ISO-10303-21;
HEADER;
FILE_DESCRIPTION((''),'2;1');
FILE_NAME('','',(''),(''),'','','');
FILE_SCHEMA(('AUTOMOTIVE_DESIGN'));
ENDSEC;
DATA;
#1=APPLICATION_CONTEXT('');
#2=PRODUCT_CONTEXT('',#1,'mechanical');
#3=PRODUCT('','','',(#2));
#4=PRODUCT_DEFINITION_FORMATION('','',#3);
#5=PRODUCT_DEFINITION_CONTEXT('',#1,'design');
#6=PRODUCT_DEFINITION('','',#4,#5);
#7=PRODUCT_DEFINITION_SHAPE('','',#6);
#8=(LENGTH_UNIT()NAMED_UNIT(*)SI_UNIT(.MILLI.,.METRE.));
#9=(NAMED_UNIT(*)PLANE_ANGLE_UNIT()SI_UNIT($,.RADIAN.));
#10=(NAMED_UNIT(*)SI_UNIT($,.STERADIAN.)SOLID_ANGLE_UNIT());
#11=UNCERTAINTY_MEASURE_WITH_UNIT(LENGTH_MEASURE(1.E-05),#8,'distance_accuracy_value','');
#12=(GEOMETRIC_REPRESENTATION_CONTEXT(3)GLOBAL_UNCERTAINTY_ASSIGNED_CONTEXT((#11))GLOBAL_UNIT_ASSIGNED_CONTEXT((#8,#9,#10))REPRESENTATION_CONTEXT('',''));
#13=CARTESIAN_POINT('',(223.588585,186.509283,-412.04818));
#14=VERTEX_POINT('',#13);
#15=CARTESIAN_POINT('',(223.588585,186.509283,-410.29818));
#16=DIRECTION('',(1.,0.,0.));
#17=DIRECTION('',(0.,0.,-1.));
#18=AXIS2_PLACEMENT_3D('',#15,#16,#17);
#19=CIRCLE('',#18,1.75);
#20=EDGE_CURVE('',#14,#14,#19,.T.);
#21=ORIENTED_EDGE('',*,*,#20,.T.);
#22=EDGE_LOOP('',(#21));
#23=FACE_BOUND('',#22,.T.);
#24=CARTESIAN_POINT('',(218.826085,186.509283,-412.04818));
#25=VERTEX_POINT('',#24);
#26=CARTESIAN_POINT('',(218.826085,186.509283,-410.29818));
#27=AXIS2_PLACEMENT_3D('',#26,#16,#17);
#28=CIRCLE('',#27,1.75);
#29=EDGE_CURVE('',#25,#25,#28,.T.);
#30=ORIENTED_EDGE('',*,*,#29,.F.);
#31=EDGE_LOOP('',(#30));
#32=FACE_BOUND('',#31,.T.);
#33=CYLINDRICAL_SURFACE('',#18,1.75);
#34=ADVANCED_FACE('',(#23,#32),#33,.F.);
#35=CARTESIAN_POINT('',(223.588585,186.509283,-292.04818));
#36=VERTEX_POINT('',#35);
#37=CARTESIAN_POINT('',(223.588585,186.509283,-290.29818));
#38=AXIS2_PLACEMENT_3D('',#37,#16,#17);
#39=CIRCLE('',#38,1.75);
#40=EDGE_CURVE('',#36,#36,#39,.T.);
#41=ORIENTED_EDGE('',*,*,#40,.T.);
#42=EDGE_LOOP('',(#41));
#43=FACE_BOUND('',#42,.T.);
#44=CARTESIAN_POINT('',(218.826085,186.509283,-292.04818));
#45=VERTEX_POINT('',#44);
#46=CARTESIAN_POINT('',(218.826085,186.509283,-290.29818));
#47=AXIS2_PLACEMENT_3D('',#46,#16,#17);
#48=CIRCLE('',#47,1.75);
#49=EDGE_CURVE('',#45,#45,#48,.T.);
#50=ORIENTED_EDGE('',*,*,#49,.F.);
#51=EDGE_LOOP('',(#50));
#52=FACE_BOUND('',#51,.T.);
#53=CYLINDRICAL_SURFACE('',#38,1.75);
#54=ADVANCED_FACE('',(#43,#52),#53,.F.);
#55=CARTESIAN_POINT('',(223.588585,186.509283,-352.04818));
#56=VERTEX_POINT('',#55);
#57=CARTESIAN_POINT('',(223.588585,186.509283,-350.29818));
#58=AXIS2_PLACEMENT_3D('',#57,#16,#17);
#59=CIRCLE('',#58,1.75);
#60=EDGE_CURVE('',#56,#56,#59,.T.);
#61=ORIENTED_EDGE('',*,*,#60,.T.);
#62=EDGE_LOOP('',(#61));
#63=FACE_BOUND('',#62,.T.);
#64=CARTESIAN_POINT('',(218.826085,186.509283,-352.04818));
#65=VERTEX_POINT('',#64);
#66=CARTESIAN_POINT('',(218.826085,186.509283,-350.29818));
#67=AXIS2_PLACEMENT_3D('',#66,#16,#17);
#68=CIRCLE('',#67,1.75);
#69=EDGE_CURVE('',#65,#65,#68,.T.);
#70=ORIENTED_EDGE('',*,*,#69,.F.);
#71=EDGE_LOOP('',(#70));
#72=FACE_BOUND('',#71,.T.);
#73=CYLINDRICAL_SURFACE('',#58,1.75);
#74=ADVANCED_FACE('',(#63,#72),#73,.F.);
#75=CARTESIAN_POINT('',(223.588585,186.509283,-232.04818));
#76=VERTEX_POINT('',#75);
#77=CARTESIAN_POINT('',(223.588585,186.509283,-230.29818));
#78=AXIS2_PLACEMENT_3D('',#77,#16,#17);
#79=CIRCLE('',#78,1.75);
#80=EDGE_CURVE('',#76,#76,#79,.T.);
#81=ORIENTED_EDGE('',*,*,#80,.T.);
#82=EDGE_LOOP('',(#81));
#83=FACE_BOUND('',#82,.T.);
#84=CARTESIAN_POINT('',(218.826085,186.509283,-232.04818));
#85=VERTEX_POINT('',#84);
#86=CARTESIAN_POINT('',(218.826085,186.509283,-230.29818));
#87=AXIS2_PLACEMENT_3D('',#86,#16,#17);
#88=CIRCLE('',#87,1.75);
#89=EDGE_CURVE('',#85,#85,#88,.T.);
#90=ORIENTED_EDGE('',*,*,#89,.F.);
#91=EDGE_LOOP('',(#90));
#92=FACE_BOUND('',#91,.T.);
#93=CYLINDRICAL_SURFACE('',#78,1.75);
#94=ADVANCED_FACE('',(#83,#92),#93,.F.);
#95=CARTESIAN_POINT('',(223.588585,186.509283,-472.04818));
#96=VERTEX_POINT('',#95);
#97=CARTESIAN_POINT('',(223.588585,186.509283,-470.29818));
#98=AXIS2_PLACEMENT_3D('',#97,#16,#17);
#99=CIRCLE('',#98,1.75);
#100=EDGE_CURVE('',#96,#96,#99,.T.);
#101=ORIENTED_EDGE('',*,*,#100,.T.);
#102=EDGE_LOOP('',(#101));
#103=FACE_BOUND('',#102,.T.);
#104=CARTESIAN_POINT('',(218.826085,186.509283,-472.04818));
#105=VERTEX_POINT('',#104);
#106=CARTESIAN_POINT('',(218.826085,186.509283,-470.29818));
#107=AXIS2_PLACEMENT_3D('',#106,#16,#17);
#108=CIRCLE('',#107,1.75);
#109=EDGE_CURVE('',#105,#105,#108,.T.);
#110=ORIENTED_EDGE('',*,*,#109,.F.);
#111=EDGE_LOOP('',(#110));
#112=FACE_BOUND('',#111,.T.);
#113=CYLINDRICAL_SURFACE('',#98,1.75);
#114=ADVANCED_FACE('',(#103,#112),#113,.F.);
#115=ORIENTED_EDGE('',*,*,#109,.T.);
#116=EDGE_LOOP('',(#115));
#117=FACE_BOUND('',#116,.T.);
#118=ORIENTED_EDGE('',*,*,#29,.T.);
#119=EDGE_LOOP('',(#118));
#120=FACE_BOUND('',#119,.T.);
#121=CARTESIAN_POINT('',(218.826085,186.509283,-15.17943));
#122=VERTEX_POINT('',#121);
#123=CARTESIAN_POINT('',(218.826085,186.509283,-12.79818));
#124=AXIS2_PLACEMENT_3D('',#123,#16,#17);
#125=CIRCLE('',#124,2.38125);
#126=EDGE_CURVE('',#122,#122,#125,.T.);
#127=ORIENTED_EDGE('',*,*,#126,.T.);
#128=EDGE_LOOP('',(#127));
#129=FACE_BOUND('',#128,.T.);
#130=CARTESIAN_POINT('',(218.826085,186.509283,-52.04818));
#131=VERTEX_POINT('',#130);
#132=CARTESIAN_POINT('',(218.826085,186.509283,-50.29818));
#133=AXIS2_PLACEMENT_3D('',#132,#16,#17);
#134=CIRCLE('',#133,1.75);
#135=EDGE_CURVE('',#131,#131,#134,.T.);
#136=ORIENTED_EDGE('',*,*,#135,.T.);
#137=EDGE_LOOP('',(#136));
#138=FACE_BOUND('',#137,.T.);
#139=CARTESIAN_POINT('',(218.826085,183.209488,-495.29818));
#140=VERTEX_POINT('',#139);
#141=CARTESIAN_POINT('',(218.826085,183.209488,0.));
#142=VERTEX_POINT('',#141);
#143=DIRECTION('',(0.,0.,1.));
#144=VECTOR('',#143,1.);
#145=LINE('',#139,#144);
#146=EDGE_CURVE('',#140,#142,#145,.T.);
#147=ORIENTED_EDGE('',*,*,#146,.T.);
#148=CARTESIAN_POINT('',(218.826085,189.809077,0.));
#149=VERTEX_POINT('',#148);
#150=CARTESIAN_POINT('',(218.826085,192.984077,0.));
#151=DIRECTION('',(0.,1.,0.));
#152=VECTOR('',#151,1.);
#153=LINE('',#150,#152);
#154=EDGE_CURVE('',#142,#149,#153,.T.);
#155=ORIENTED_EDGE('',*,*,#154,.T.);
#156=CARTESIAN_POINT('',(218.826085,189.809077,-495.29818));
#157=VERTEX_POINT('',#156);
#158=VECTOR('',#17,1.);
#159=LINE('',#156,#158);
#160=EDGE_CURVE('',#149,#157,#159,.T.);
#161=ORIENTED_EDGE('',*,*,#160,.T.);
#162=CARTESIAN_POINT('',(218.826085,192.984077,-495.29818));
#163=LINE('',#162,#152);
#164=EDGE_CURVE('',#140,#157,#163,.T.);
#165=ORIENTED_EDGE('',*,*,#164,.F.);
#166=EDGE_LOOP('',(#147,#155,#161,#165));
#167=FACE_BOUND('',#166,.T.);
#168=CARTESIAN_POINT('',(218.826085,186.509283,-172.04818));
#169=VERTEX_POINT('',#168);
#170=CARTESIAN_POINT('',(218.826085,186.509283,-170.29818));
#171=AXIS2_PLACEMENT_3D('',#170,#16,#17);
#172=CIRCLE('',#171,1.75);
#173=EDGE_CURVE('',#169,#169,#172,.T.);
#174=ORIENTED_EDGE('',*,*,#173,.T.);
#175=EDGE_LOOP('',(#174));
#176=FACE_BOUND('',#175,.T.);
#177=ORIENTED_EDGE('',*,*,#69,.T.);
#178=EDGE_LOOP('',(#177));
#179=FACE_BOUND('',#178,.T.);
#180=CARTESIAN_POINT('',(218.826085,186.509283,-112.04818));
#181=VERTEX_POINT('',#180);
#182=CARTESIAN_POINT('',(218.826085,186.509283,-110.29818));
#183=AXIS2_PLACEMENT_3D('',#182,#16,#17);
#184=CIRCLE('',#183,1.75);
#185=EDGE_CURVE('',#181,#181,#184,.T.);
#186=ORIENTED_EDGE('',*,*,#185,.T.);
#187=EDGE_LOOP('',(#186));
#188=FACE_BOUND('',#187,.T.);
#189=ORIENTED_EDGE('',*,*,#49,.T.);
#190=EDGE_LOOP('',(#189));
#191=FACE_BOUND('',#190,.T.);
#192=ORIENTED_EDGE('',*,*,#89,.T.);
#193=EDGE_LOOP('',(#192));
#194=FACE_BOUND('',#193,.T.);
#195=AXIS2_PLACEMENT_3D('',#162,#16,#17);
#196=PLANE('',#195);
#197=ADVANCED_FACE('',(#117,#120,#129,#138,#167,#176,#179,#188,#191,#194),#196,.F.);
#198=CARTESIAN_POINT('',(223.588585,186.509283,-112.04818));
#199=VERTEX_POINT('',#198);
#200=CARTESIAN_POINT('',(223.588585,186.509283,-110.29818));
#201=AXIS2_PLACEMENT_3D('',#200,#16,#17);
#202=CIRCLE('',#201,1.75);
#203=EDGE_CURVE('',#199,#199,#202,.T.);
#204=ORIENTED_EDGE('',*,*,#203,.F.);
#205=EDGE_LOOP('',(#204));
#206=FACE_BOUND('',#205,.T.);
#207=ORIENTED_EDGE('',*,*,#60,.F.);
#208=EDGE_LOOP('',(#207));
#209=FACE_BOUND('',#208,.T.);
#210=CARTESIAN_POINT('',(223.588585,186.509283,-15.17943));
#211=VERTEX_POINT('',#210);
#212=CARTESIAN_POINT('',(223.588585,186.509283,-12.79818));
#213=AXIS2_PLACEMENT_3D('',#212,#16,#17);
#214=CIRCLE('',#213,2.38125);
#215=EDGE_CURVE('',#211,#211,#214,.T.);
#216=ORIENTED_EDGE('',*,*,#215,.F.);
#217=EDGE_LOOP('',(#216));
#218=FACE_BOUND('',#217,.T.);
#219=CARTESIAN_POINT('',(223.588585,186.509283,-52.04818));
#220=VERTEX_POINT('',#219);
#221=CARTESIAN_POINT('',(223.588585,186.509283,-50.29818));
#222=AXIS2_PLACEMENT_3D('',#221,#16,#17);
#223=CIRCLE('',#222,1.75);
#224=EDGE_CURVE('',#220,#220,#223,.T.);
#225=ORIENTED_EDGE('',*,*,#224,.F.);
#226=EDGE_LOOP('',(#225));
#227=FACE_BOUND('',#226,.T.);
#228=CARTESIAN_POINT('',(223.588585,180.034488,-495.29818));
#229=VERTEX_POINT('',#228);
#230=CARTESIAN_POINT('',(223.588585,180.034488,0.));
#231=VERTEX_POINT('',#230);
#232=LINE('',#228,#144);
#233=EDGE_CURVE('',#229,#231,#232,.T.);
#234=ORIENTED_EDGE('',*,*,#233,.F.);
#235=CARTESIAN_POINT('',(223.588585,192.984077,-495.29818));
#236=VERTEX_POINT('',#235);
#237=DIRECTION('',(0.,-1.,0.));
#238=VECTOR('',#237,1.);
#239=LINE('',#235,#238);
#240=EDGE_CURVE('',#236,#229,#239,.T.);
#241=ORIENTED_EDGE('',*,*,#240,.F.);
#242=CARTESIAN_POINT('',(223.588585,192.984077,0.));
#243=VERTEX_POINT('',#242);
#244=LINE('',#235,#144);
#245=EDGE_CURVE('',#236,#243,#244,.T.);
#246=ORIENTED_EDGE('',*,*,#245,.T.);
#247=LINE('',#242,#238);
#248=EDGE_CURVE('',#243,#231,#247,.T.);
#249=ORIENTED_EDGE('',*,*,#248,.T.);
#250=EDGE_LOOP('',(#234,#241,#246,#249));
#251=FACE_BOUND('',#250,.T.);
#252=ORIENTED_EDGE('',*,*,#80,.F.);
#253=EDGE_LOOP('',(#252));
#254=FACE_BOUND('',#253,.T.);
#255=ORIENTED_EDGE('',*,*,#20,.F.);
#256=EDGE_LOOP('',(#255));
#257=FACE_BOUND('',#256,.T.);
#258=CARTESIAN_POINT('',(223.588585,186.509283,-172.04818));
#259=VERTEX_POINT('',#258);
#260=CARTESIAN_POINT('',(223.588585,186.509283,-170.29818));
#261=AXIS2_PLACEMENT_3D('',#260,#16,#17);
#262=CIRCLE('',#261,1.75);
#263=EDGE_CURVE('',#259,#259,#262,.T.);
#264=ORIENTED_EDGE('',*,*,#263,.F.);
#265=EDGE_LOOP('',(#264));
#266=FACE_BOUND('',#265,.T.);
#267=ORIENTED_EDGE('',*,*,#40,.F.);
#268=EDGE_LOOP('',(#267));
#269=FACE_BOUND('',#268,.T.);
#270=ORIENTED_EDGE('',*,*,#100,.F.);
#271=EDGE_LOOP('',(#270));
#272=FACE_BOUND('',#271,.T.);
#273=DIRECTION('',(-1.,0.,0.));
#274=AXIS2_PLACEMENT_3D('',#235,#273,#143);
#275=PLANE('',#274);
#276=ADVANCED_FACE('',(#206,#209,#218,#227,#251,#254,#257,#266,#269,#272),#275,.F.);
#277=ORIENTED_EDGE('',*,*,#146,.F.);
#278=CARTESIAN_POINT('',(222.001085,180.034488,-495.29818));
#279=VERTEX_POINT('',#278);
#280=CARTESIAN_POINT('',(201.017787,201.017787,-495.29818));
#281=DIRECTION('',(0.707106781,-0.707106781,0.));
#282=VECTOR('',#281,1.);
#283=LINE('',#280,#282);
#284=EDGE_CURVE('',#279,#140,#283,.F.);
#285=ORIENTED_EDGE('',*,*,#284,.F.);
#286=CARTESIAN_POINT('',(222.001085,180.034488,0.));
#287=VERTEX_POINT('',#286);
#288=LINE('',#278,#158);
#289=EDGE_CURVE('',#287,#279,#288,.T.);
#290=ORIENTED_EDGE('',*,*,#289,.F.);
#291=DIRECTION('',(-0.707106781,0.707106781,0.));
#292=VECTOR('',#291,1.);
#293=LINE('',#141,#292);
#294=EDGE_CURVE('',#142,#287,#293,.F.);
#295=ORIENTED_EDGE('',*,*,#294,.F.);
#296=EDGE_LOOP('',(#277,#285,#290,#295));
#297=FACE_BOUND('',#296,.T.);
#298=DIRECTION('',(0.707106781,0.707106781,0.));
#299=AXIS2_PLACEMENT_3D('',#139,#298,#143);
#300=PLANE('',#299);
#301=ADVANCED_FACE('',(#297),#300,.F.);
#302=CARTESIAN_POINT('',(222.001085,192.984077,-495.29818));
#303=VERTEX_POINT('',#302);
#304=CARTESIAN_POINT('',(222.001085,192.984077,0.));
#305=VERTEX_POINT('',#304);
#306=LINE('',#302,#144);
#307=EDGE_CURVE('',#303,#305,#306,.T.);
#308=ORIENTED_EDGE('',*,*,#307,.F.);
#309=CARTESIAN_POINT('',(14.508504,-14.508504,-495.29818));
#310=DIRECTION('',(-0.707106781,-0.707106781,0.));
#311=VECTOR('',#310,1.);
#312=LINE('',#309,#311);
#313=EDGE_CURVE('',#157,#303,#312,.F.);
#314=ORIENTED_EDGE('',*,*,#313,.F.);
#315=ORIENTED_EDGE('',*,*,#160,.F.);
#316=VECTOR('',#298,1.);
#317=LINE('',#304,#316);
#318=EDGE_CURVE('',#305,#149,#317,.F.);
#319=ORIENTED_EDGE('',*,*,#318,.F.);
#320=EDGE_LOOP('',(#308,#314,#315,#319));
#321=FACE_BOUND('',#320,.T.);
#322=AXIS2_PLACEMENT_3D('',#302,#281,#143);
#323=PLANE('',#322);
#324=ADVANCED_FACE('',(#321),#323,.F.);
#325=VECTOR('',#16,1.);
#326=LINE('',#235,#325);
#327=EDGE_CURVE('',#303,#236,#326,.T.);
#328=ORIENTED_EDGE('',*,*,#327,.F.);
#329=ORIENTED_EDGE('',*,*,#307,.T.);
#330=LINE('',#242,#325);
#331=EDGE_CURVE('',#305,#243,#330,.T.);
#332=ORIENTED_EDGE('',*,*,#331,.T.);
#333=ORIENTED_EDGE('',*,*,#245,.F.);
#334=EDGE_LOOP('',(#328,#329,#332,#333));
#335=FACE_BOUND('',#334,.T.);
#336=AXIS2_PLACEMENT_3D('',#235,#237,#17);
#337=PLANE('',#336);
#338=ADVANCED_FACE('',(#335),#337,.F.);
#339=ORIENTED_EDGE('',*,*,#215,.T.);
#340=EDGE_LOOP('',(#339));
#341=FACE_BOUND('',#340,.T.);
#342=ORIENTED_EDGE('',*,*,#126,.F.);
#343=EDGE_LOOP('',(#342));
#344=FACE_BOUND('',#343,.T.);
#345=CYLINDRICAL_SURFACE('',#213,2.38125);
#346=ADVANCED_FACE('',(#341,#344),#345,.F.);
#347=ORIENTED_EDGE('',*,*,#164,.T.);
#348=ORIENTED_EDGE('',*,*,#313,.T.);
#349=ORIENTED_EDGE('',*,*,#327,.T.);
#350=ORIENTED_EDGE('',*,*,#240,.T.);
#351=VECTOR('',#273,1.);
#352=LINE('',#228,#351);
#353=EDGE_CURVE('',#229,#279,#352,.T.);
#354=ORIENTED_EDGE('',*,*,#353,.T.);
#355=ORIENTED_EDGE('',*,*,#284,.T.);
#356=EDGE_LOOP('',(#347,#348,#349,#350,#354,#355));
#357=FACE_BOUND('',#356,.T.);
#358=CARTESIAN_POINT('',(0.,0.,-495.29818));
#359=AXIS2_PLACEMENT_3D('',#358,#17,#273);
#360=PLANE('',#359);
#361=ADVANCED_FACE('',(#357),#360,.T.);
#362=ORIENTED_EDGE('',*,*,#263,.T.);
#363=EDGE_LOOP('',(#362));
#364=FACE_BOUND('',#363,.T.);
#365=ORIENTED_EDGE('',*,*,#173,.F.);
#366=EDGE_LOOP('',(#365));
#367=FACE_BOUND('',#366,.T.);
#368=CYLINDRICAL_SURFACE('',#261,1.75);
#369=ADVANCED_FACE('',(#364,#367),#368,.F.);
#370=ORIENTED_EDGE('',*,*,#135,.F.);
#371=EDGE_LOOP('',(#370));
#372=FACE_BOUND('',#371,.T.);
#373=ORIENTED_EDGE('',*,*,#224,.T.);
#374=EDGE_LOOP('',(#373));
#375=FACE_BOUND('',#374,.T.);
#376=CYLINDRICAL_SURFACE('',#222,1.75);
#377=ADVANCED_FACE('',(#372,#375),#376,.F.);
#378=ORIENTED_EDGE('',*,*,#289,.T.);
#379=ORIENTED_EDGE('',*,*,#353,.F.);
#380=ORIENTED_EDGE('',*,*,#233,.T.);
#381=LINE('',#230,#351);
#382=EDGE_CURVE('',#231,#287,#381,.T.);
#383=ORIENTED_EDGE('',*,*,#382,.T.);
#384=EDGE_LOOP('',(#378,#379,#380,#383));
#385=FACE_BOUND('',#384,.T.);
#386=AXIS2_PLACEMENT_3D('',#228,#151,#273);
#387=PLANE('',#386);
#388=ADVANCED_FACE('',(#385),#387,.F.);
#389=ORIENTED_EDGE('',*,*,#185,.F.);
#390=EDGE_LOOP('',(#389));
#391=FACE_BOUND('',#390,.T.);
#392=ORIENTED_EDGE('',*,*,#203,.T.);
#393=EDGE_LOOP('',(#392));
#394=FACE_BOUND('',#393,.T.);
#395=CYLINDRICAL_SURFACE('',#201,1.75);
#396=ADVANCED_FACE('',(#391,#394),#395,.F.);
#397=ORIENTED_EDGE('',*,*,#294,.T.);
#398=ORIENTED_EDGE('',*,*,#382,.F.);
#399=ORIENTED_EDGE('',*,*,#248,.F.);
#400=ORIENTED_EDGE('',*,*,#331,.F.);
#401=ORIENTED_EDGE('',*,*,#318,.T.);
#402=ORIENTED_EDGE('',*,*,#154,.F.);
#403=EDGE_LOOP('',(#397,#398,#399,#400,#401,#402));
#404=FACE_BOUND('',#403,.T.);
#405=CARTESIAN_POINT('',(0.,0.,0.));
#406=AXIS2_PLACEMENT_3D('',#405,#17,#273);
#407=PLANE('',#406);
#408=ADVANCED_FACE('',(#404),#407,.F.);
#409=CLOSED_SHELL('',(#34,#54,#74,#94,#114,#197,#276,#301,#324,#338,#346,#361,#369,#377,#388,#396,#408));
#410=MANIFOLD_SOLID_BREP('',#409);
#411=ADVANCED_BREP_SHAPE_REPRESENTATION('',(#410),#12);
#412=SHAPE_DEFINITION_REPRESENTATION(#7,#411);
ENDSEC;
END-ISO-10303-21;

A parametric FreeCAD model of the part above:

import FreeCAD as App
import Part
import Sketcher

V = App.Vector
Q = App.Units.Quantity


def edges_at(feature, points):
    """Names of the edges that pass closest to the given points."""
    edges = feature.Shape.Edges
    near = lambda p: min(range(len(edges)), key=lambda i: edges[i].distToShape(Part.Vertex(*p))[0])
    return sorted({f"Edge{near(p) + 1}" for p in points})


def add_polygon(sketch, points):
    """Adds a closed chain of lines whose ends are joined by coincident constraints."""
    first, n = sketch.GeometryCount, len(points)
    for a, b in zip(points, points[1:] + points[:1]):
        sketch.addGeometry(Part.LineSegment(App.Vector(*a, 0), App.Vector(*b, 0)), False)
    for i in range(n):
        sketch.addConstraint(Sketcher.Constraint("Coincident", first + i, 2, first + (i + 1) % n, 1))

doc = App.newDocument("Part")
body = doc.addObject("PartDesign::Body", "Body")

sketch1 = body.newObject("Sketcher::SketchObject", "Sketch")
sketch1.AttachmentSupport = (doc.getObject("XY_Plane"), [""])
sketch1.MapMode = "FlatFace"
add_polygon(sketch1, [(223.6, 193), (223.6, 180), (218.8, 180), (218.8, 193)])
sketch1.addConstraint([
    Sketcher.Constraint("Vertical", 0),
    Sketcher.Constraint("Horizontal", 1),
    Sketcher.Constraint("Vertical", 2),
    Sketcher.Constraint("Horizontal", 3),
    Sketcher.Constraint("DistanceX", 1, 2, 1, 1, Q("0.1875 in")),
    Sketcher.Constraint("DistanceY", 0, 2, 0, 1, Q("12.949589 mm")),
    Sketcher.Constraint("DistanceY", -1, 1, 0, 2, Q("180.034488 mm")),
    Sketcher.Constraint("DistanceX", -1, 1, 0, 2, Q("223.588585 mm")),
])
pad1 = body.newObject("PartDesign::Pad", "Pad")
pad1.Profile = sketch1
pad1.Length = 495.29818
pad1.Reversed = True

sketch2 = body.newObject("Sketcher::SketchObject", "Sketch001")
sketch2.AttachmentSupport = (doc.getObject("YZ_Plane"), [""])
sketch2.MapMode = "FlatFace"
sketch2.AttachmentOffset = App.Placement(V(0, 0, 223.588585), App.Rotation())
sketch2.addGeometry(Part.Circle(V(186.5, -12.8, 0), V(0, 0, 1), 2.4), False)
sketch2.addConstraint([
    Sketcher.Constraint("Diameter", 0, Q("0.1875 in")),
    Sketcher.Constraint("DistanceY", 0, 3, -1, 1, Q("12.79818 mm")),
    Sketcher.Constraint("DistanceX", -1, 1, 0, 3, Q("186.509283 mm")),
])
doc.recompute()
hole = body.newObject("PartDesign::Hole", "Hole")
hole.Profile = sketch2
hole.ThreadType = "None"
hole.Diameter = Q("0.1875 in")
hole.DepthType = "Dimension"
hole.Depth = Q("0.1875 in")
hole.DrillPoint = "Flat"
doc.recompute()

chamfer = body.newObject("PartDesign::Chamfer", "Chamfer")
chamfer.Base = (hole, edges_at(hole, [(218.826, 180.034, -247.649), (218.826, 192.984, -247.649)]))
chamfer.Size = Q("0.125 in")

sketch3 = body.newObject("Sketcher::SketchObject", "Sketch002")
sketch3.AttachmentSupport = (doc.getObject("YZ_Plane"), [""])
sketch3.MapMode = "FlatFace"
sketch3.AttachmentOffset = App.Placement(V(0, 0, 223.588585), App.Rotation())
sketch3.addGeometry([
    Part.Circle(V(186.5, -470.3, 0), V(0, 0, 1), 1.8),
    Part.Circle(V(186.5, -410.3, 0), V(0, 0, 1), 1.8),
    Part.Circle(V(186.5, -350.3, 0), V(0, 0, 1), 1.8),
    Part.Circle(V(186.5, -290.3, 0), V(0, 0, 1), 1.8),
    Part.Circle(V(186.5, -170.3, 0), V(0, 0, 1), 1.8),
    Part.Circle(V(186.5, -110.3, 0), V(0, 0, 1), 1.8),
    Part.Circle(V(186.5, -50.3, 0), V(0, 0, 1), 1.8),
    Part.Circle(V(186.5, -230.3, 0), V(0, 0, 1), 1.8),
], False)
sketch3.addConstraint([
    Sketcher.Constraint("Equal", 0, 1),
    Sketcher.Constraint("Equal", 1, 2),
    Sketcher.Constraint("Equal", 2, 3),
    Sketcher.Constraint("Equal", 3, 4),
    Sketcher.Constraint("Equal", 4, 5),
    Sketcher.Constraint("Equal", 5, 6),
    Sketcher.Constraint("Equal", 6, 7),
    Sketcher.Constraint("Vertical", 0, 3, 1, 3),
    Sketcher.Constraint("Vertical", 1, 3, 2, 3),
    Sketcher.Constraint("Vertical", 2, 3, 3, 3),
    Sketcher.Constraint("Vertical", 3, 3, 4, 3),
    Sketcher.Constraint("Vertical", 4, 3, 5, 3),
    Sketcher.Constraint("Vertical", 5, 3, 6, 3),
    Sketcher.Constraint("Vertical", 6, 3, 7, 3),
    Sketcher.Constraint("Diameter", 0, Q("3.5 mm")),
    Sketcher.Constraint("DistanceY", 0, 3, 1, 3, Q("60 mm")),
    Sketcher.Constraint("DistanceY", 1, 3, 2, 3, Q("60 mm")),
    Sketcher.Constraint("DistanceY", 2, 3, 3, 3, Q("60 mm")),
    Sketcher.Constraint("DistanceY", 3, 3, 4, 3, Q("120 mm")),
    Sketcher.Constraint("DistanceY", 4, 3, 5, 3, Q("60 mm")),
    Sketcher.Constraint("DistanceY", 5, 3, 6, 3, Q("60 mm")),
    Sketcher.Constraint("DistanceY", 3, 3, 7, 3, Q("60 mm")),
    Sketcher.Constraint("DistanceY", 0, 3, -1, 1, Q("470.29818 mm")),
    Sketcher.Constraint("DistanceX", -1, 1, 0, 3, Q("186.509283 mm")),
])
doc.recompute()
hole2 = body.newObject("PartDesign::Hole", "Hole001")
hole2.Profile = sketch3
hole2.ThreadType = "None"
hole2.Diameter = 3.5
hole2.DepthType = "Dimension"
hole2.Depth = Q("0.1875 in")
hole2.DrillPoint = "Flat"

doc.recompute()
